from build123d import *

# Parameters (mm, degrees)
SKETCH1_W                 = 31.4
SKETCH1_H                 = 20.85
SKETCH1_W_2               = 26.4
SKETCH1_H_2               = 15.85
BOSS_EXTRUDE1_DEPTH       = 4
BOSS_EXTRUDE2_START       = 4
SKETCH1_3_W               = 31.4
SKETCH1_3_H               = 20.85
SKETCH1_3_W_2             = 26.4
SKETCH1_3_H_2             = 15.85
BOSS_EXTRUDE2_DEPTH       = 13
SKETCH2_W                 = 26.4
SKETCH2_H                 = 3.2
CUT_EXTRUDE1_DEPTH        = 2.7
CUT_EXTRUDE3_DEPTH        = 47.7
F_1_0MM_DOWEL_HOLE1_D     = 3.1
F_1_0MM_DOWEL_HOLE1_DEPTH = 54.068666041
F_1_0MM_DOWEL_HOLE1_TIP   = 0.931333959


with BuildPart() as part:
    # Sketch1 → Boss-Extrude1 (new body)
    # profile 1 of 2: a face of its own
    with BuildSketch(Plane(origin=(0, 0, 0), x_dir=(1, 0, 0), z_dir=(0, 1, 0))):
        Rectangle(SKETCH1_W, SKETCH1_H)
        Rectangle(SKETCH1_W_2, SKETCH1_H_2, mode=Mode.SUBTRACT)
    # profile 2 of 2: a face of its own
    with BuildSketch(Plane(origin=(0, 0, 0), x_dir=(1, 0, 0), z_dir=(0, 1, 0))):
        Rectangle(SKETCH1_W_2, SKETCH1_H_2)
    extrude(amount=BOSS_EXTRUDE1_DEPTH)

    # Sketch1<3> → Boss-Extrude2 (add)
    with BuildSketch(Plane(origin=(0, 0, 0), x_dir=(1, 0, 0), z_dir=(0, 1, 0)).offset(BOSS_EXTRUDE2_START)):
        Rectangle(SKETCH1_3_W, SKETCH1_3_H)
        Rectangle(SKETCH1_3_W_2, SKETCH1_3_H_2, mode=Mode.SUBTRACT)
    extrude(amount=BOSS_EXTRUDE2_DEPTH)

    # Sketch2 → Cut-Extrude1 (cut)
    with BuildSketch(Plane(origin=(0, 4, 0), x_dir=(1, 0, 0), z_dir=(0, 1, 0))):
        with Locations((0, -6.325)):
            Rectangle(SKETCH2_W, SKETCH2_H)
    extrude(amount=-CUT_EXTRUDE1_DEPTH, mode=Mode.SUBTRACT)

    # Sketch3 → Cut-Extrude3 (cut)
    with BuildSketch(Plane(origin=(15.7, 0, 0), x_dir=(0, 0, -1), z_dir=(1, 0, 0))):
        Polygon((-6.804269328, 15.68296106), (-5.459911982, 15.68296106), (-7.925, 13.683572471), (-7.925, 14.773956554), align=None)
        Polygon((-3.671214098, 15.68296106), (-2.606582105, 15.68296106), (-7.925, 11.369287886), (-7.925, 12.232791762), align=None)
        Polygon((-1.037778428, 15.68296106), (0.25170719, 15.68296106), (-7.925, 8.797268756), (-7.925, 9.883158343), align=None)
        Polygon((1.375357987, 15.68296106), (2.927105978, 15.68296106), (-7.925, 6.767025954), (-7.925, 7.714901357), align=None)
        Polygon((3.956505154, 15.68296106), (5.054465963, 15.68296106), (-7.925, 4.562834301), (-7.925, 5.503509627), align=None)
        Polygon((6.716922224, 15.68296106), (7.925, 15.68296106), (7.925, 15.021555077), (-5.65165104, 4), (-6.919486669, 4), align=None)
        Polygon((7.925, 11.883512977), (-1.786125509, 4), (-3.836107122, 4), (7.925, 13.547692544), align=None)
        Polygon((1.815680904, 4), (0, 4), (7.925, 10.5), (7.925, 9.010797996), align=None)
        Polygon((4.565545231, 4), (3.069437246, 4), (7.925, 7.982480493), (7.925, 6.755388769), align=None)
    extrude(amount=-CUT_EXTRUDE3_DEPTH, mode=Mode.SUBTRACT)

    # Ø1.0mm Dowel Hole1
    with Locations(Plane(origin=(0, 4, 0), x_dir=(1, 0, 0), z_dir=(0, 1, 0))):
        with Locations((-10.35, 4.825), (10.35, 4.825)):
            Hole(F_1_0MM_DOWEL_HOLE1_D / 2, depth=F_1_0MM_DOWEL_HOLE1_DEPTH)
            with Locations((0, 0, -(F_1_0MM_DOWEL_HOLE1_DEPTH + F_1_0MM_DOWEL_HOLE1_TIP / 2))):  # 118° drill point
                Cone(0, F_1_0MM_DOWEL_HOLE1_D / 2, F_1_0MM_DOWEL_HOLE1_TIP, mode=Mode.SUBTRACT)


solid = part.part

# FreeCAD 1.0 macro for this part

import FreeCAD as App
import Part
import Sketcher

doc = App.newDocument("Part")
body = doc.addObject("PartDesign::Body", "Body")

# Sketch on XZ plane
sketch1 = body.newObject("Sketcher::SketchObject", "Sketch")
sketch1.AttachmentSupport = (doc.getObject("XZ_Plane"), [""])
sketch1.MapMode = "FlatFace"
sketch1.addGeometry(Part.LineSegment(App.Vector(-16, -10, 0), App.Vector(-16, 10, 0)), False)
sketch1.addGeometry(Part.LineSegment(App.Vector(-16, 10, 0), App.Vector(16, 10, 0)), False)
sketch1.addGeometry(Part.LineSegment(App.Vector(16, 10, 0), App.Vector(16, -10, 0)), False)
sketch1.addGeometry(Part.LineSegment(App.Vector(16, -10, 0), App.Vector(-16, -10, 0)), False)
sketch1.addConstraint(Sketcher.Constraint("Coincident", 0, 2, 1, 1))
sketch1.addConstraint(Sketcher.Constraint("Coincident", 1, 2, 2, 1))
sketch1.addConstraint(Sketcher.Constraint("Coincident", 2, 2, 3, 1))
sketch1.addConstraint(Sketcher.Constraint("Coincident", 3, 2, 0, 1))
sketch1.addConstraint(Sketcher.Constraint("Vertical", 0))
sketch1.addConstraint(Sketcher.Constraint("Horizontal", 1))
sketch1.addConstraint(Sketcher.Constraint("Vertical", 2))
sketch1.addConstraint(Sketcher.Constraint("Horizontal", 3))
sketch1.addConstraint(Sketcher.Constraint("Symmetric", 0, 2, 2, 2, -1, 1))
sketch1.addConstraint(Sketcher.Constraint("DistanceX", 1, 1, 1, 2, 31.4))
sketch1.addConstraint(Sketcher.Constraint("DistanceY", 0, 1, 0, 2, 20.85))
pad1 = body.newObject("PartDesign::Pad", "Pad")
pad1.Profile = sketch1
pad1.Length = 4
pad1.Reversed = True

# Sketch on XZ plane
sketch2 = body.newObject("Sketcher::SketchObject", "Sketch001")
sketch2.AttachmentSupport = (doc.getObject("XZ_Plane"), [""])
sketch2.MapMode = "FlatFace"
sketch2.AttachmentOffset = App.Placement(App.Vector(0, 0, -4), App.Rotation())
sketch2.addGeometry(Part.LineSegment(App.Vector(-16, -10, 0), App.Vector(-16, 10, 0)), False)
sketch2.addGeometry(Part.LineSegment(App.Vector(-16, 10, 0), App.Vector(16, 10, 0)), False)
sketch2.addGeometry(Part.LineSegment(App.Vector(16, 10, 0), App.Vector(16, -10, 0)), False)
sketch2.addGeometry(Part.LineSegment(App.Vector(16, -10, 0), App.Vector(-16, -10, 0)), False)
sketch2.addGeometry(Part.LineSegment(App.Vector(13, 8, 0), App.Vector(-13, 8, 0)), False)
sketch2.addGeometry(Part.LineSegment(App.Vector(-13, 8, 0), App.Vector(-13, -8, 0)), False)
sketch2.addGeometry(Part.LineSegment(App.Vector(-13, -8, 0), App.Vector(13, -8, 0)), False)
sketch2.addGeometry(Part.LineSegment(App.Vector(13, -8, 0), App.Vector(13, 8, 0)), False)
sketch2.addConstraint(Sketcher.Constraint("Coincident", 0, 2, 1, 1))
sketch2.addConstraint(Sketcher.Constraint("Coincident", 1, 2, 2, 1))
sketch2.addConstraint(Sketcher.Constraint("Coincident", 2, 2, 3, 1))
sketch2.addConstraint(Sketcher.Constraint("Coincident", 3, 2, 0, 1))
sketch2.addConstraint(Sketcher.Constraint("Coincident", 4, 2, 5, 1))
sketch2.addConstraint(Sketcher.Constraint("Coincident", 5, 2, 6, 1))
sketch2.addConstraint(Sketcher.Constraint("Coincident", 6, 2, 7, 1))
sketch2.addConstraint(Sketcher.Constraint("Coincident", 7, 2, 4, 1))
sketch2.addConstraint(Sketcher.Constraint("Vertical", 0))
sketch2.addConstraint(Sketcher.Constraint("Horizontal", 1))
sketch2.addConstraint(Sketcher.Constraint("Vertical", 2))
sketch2.addConstraint(Sketcher.Constraint("Horizontal", 3))
sketch2.addConstraint(Sketcher.Constraint("Horizontal", 4))
sketch2.addConstraint(Sketcher.Constraint("Vertical", 5))
sketch2.addConstraint(Sketcher.Constraint("Horizontal", 6))
sketch2.addConstraint(Sketcher.Constraint("Vertical", 7))
sketch2.addConstraint(Sketcher.Constraint("Symmetric", 0, 2, 2, 2, -1, 1))
sketch2.addConstraint(Sketcher.Constraint("Symmetric", 4, 2, 6, 2, -1, 1))
sketch2.addConstraint(Sketcher.Constraint("DistanceX", 1, 1, 1, 2, 31.4))
sketch2.addConstraint(Sketcher.Constraint("DistanceX", 4, 2, 4, 1, 26.4))
sketch2.addConstraint(Sketcher.Constraint("DistanceY", 0, 1, 0, 2, 20.85))
sketch2.addConstraint(Sketcher.Constraint("DistanceY", 5, 2, 5, 1, 15.85))
pad2 = body.newObject("PartDesign::Pad", "Pad001")
pad2.Profile = sketch2
pad2.Length = 13
pad2.Reversed = True

# Sketch on XZ plane
sketch3 = body.newObject("Sketcher::SketchObject", "Sketch002")
sketch3.AttachmentSupport = (doc.getObject("XZ_Plane"), [""])
sketch3.MapMode = "FlatFace"
sketch3.AttachmentOffset = App.Placement(App.Vector(0, 0, -4), App.Rotation())
sketch3.addGeometry(Part.LineSegment(App.Vector(-13.2, 4.7, 0), App.Vector(-13.2, 7.9, 0)), False)
sketch3.addGeometry(Part.LineSegment(App.Vector(-13.2, 7.9, 0), App.Vector(13.2, 7.9, 0)), False)
sketch3.addGeometry(Part.LineSegment(App.Vector(13.2, 7.9, 0), App.Vector(13.2, 4.7, 0)), False)
sketch3.addGeometry(Part.LineSegment(App.Vector(13.2, 4.7, 0), App.Vector(-13.2, 4.7, 0)), False)
sketch3.addConstraint(Sketcher.Constraint("Coincident", 0, 2, 1, 1))
sketch3.addConstraint(Sketcher.Constraint("Coincident", 1, 2, 2, 1))
sketch3.addConstraint(Sketcher.Constraint("Coincident", 2, 2, 3, 1))
sketch3.addConstraint(Sketcher.Constraint("Coincident", 3, 2, 0, 1))
sketch3.addConstraint(Sketcher.Constraint("Vertical", 0))
sketch3.addConstraint(Sketcher.Constraint("Horizontal", 1))
sketch3.addConstraint(Sketcher.Constraint("Vertical", 2))
sketch3.addConstraint(Sketcher.Constraint("Horizontal", 3))
sketch3.addConstraint(Sketcher.Constraint("DistanceX", 1, 1, 1, 2, 26.4))
sketch3.addConstraint(Sketcher.Constraint("DistanceY", 0, 1, 0, 2, 3.2))
sketch3.addConstraint(Sketcher.Constraint("DistanceX", 0, 2, -1, 1, 13.2))
sketch3.addConstraint(Sketcher.Constraint("DistanceY", -1, 1, 0, 2, 7.925))
pocket1 = body.newObject("PartDesign::Pocket", "Pocket")
pocket1.Profile = sketch3
pocket1.Length = 2.7
pocket1.Reversed = True

# Sketch on YZ plane
sketch4 = body.newObject("Sketcher::SketchObject", "Sketch003")
sketch4.AttachmentSupport = (doc.getObject("YZ_Plane"), [""])
sketch4.MapMode = "FlatFace"
sketch4.AttachmentOffset = App.Placement(App.Vector(0, 0, 15.7), App.Rotation())
sketch4.addGeometry(Part.LineSegment(App.Vector(15.7, 5.5, 0), App.Vector(15.7, 6.8, 0)), False)
sketch4.addGeometry(Part.LineSegment(App.Vector(15.7, 6.8, 0), App.Vector(14.8, 7.9, 0)), False)
sketch4.addGeometry(Part.LineSegment(App.Vector(14.8, 7.9, 0), App.Vector(13.7, 7.9, 0)), False)
sketch4.addGeometry(Part.LineSegment(App.Vector(13.7, 7.9, 0), App.Vector(15.7, 5.5, 0)), False)
sketch4.addGeometry(Part.LineSegment(App.Vector(15.7, 2.6, 0), App.Vector(15.7, 3.7, 0)), False)
sketch4.addGeometry(Part.LineSegment(App.Vector(15.7, 3.7, 0), App.Vector(12.2, 7.9, 0)), False)
sketch4.addGeometry(Part.LineSegment(App.Vector(12.2, 7.9, 0), App.Vector(11.4, 7.9, 0)), False)
sketch4.addGeometry(Part.LineSegment(App.Vector(11.4, 7.9, 0), App.Vector(15.7, 2.6, 0)), False)
sketch4.addGeometry(Part.LineSegment(App.Vector(15.7, -0.3, 0), App.Vector(15.7, 1, 0)), False)
sketch4.addGeometry(Part.LineSegment(App.Vector(15.7, 1, 0), App.Vector(9.9, 7.9, 0)), False)
sketch4.addGeometry(Part.LineSegment(App.Vector(9.9, 7.9, 0), App.Vector(8.8, 7.9, 0)), False)
sketch4.addGeometry(Part.LineSegment(App.Vector(8.8, 7.9, 0), App.Vector(15.7, -0.3, 0)), False)
sketch4.addGeometry(Part.LineSegment(App.Vector(15.7, -2.9, 0), App.Vector(15.7, -1.4, 0)), False)
sketch4.addGeometry(Part.LineSegment(App.Vector(15.7, -1.4, 0), App.Vector(7.7, 7.9, 0)), False)
sketch4.addGeometry(Part.LineSegment(App.Vector(7.7, 7.9, 0), App.Vector(6.8, 7.9, 0)), False)
sketch4.addGeometry(Part.LineSegment(App.Vector(6.8, 7.9, 0), App.Vector(15.7, -2.9, 0)), False)
sketch4.addGeometry(Part.LineSegment(App.Vector(15.7, -5.1, 0), App.Vector(15.7, -4, 0)), False)
sketch4.addGeometry(Part.LineSegment(App.Vector(15.7, -4, 0), App.Vector(5.5, 7.9, 0)), False)
sketch4.addGeometry(Part.LineSegment(App.Vector(5.5, 7.9, 0), App.Vector(4.6, 7.9, 0)), False)
sketch4.addGeometry(Part.LineSegment(App.Vector(4.6, 7.9, 0), App.Vector(15.7, -5.1, 0)), False)
sketch4.addGeometry(Part.LineSegment(App.Vector(15.7, -7.9, 0), App.Vector(15.7, -6.7, 0)), False)
sketch4.addGeometry(Part.LineSegment(App.Vector(15.7, -6.7, 0), App.Vector(4, 6.9, 0)), False)
sketch4.addGeometry(Part.LineSegment(App.Vector(4, 6.9, 0), App.Vector(4, 5.7, 0)), False)
sketch4.addGeometry(Part.LineSegment(App.Vector(4, 5.7, 0), App.Vector(15, -7.9, 0)), False)
sketch4.addGeometry(Part.LineSegment(App.Vector(15, -7.9, 0), App.Vector(15.7, -7.9, 0)), False)
sketch4.addGeometry(Part.LineSegment(App.Vector(4, 1.8, 0), App.Vector(11.9, -7.9, 0)), False)
sketch4.addGeometry(Part.LineSegment(App.Vector(11.9, -7.9, 0), App.Vector(13.5, -7.9, 0)), False)
sketch4.addGeometry(Part.LineSegment(App.Vector(13.5, -7.9, 0), App.Vector(4, 3.8, 0)), False)
sketch4.addGeometry(Part.LineSegment(App.Vector(4, 3.8, 0), App.Vector(4, 1.8, 0)), False)
sketch4.addGeometry(Part.LineSegment(App.Vector(4, 0, 0), App.Vector(4, -1.8, 0)), False)
sketch4.addGeometry(Part.LineSegment(App.Vector(4, -1.8, 0), App.Vector(9, -7.9, 0)), False)
sketch4.addGeometry(Part.LineSegment(App.Vector(9, -7.9, 0), App.Vector(10.5, -7.9, 0)), False)
sketch4.addGeometry(Part.LineSegment(App.Vector(10.5, -7.9, 0), App.Vector(4, 0, 0)), False)
sketch4.addGeometry(Part.LineSegment(App.Vector(4, -3.1, 0), App.Vector(4, -4.6, 0)), False)
sketch4.addGeometry(Part.LineSegment(App.Vector(4, -4.6, 0), App.Vector(6.8, -7.9, 0)), False)
sketch4.addGeometry(Part.LineSegment(App.Vector(6.8, -7.9, 0), App.Vector(8, -7.9, 0)), False)
sketch4.addGeometry(Part.LineSegment(App.Vector(8, -7.9, 0), App.Vector(4, -3.1, 0)), False)
sketch4.addConstraint(Sketcher.Constraint("Coincident", 0, 2, 1, 1))
sketch4.addConstraint(Sketcher.Constraint("Coincident", 1, 2, 2, 1))
sketch4.addConstraint(Sketcher.Constraint("Coincident", 2, 2, 3, 1))
sketch4.addConstraint(Sketcher.Constraint("Coincident", 3, 2, 0, 1))
sketch4.addConstraint(Sketcher.Constraint("Coincident", 4, 2, 5, 1))
sketch4.addConstraint(Sketcher.Constraint("Coincident", 5, 2, 6, 1))
sketch4.addConstraint(Sketcher.Constraint("Coincident", 6, 2, 7, 1))
sketch4.addConstraint(Sketcher.Constraint("Coincident", 7, 2, 4, 1))
sketch4.addConstraint(Sketcher.Constraint("Coincident", 8, 2, 9, 1))
sketch4.addConstraint(Sketcher.Constraint("Coincident", 9, 2, 10, 1))
sketch4.addConstraint(Sketcher.Constraint("Coincident", 10, 2, 11, 1))
sketch4.addConstraint(Sketcher.Constraint("Coincident", 11, 2, 8, 1))
sketch4.addConstraint(Sketcher.Constraint("Coincident", 12, 2, 13, 1))
sketch4.addConstraint(Sketcher.Constraint("Coincident", 13, 2, 14, 1))
sketch4.addConstraint(Sketcher.Constraint("Coincident", 14, 2, 15, 1))
sketch4.addConstraint(Sketcher.Constraint("Coincident", 15, 2, 12, 1))
sketch4.addConstraint(Sketcher.Constraint("Coincident", 16, 2, 17, 1))
sketch4.addConstraint(Sketcher.Constraint("Coincident", 17, 2, 18, 1))
sketch4.addConstraint(Sketcher.Constraint("Coincident", 18, 2, 19, 1))
sketch4.addConstraint(Sketcher.Constraint("Coincident", 19, 2, 16, 1))
sketch4.addConstraint(Sketcher.Constraint("Coincident", 20, 2, 21, 1))
sketch4.addConstraint(Sketcher.Constraint("Coincident", 21, 2, 22, 1))
sketch4.addConstraint(Sketcher.Constraint("Coincident", 22, 2, 23, 1))
sketch4.addConstraint(Sketcher.Constraint("Coincident", 23, 2, 24, 1))
sketch4.addConstraint(Sketcher.Constraint("Coincident", 24, 2, 20, 1))
sketch4.addConstraint(Sketcher.Constraint("Coincident", 25, 2, 26, 1))
sketch4.addConstraint(Sketcher.Constraint("Coincident", 26, 2, 27, 1))
sketch4.addConstraint(Sketcher.Constraint("Coincident", 27, 2, 28, 1))
sketch4.addConstraint(Sketcher.Constraint("Coincident", 28, 2, 25, 1))
sketch4.addConstraint(Sketcher.Constraint("Coincident", 29, 2, 30, 1))
sketch4.addConstraint(Sketcher.Constraint("Coincident", 30, 2, 31, 1))
sketch4.addConstraint(Sketcher.Constraint("Coincident", 31, 2, 32, 1))
sketch4.addConstraint(Sketcher.Constraint("Coincident", 32, 2, 29, 1))
sketch4.addConstraint(Sketcher.Constraint("Coincident", 33, 2, 34, 1))
sketch4.addConstraint(Sketcher.Constraint("Coincident", 34, 2, 35, 1))
sketch4.addConstraint(Sketcher.Constraint("Coincident", 35, 2, 36, 1))
sketch4.addConstraint(Sketcher.Constraint("Coincident", 36, 2, 33, 1))
sketch4.addConstraint(Sketcher.Constraint("Vertical", 0))
sketch4.addConstraint(Sketcher.Constraint("Horizontal", 2))
sketch4.addConstraint(Sketcher.Constraint("Vertical", 4))
sketch4.addConstraint(Sketcher.Constraint("Horizontal", 6))
sketch4.addConstraint(Sketcher.Constraint("Vertical", 8))
sketch4.addConstraint(Sketcher.Constraint("Horizontal", 10))
sketch4.addConstraint(Sketcher.Constraint("Vertical", 12))
sketch4.addConstraint(Sketcher.Constraint("Horizontal", 14))
sketch4.addConstraint(Sketcher.Constraint("Vertical", 16))
sketch4.addConstraint(Sketcher.Constraint("Horizontal", 18))
sketch4.addConstraint(Sketcher.Constraint("Vertical", 20))
sketch4.addConstraint(Sketcher.Constraint("Vertical", 22))
sketch4.addConstraint(Sketcher.Constraint("Horizontal", 24))
sketch4.addConstraint(Sketcher.Constraint("Horizontal", 26))
sketch4.addConstraint(Sketcher.Constraint("Vertical", 28))
sketch4.addConstraint(Sketcher.Constraint("Vertical", 29))
sketch4.addConstraint(Sketcher.Constraint("Horizontal", 31))
sketch4.addConstraint(Sketcher.Constraint("Vertical", 33))
sketch4.addConstraint(Sketcher.Constraint("Horizontal", 35))
sketch4.addConstraint(Sketcher.Constraint("PointOnObject", 32, 2, -1))
sketch4.addConstraint(Sketcher.Constraint("Parallel", 1, 3))
sketch4.addConstraint(Sketcher.Constraint("Parallel", 3, 5))
sketch4.addConstraint(Sketcher.Constraint("Parallel", 5, 7))
sketch4.addConstraint(Sketcher.Constraint("Parallel", 9, 11))
sketch4.addConstraint(Sketcher.Constraint("Parallel", 13, 17))
sketch4.addConstraint(Sketcher.Constraint("Parallel", 17, 19))
sketch4.addConstraint(Sketcher.Constraint("Parallel", 19, 21))
sketch4.addConstraint(Sketcher.Constraint("Parallel", 23, 25))
sketch4.addConstraint(Sketcher.Constraint("Parallel", 25, 27))
sketch4.addConstraint(Sketcher.Constraint("Parallel", 30, 32))
sketch4.addConstraint(Sketcher.Constraint("Parallel", 32, 34))
sketch4.addConstraint(Sketcher.Constraint("Parallel", 34, 36))
sketch4.addConstraint(Sketcher.Constraint("Horizontal", 2, 2, 5, 2))
sketch4.addConstraint(Sketcher.Constraint("Horizontal", 6, 2, 9, 2))
sketch4.addConstraint(Sketcher.Constraint("Horizontal", 10, 2, 13, 2))
sketch4.addConstraint(Sketcher.Constraint("Horizontal", 14, 2, 17, 2))
sketch4.addConstraint(Sketcher.Constraint("Horizontal", 24, 2, 25, 2))
sketch4.addConstraint(Sketcher.Constraint("Horizontal", 26, 2, 30, 2))
sketch4.addConstraint(Sketcher.Constraint("Horizontal", 31, 2, 34, 2))
sketch4.addConstraint(Sketcher.Constraint("Vertical", 3, 2, 4, 2))
sketch4.addConstraint(Sketcher.Constraint("Vertical", 7, 2, 8, 2))
sketch4.addConstraint(Sketcher.Constraint("Vertical", 11, 2, 12, 2))
sketch4.addConstraint(Sketcher.Constraint("Vertical", 15, 2, 16, 2))
sketch4.addConstraint(Sketcher.Constraint("Vertical", 19, 2, 20, 2))
sketch4.addConstraint(Sketcher.Constraint("Vertical", 22, 2, 27, 2))
sketch4.addConstraint(Sketcher.Constraint("Vertical", 28, 2, 29, 2))
sketch4.addConstraint(Sketcher.Constraint("Vertical", 32, 2, 33, 2))
sketch4.addConstraint(Sketcher.Constraint("DistanceX", -1, 1, 21, 2, 4.0))
sketch4.addConstraint(Sketcher.Constraint("DistanceX", -1, 1, 31, 2, 10.5))
sketch4.addConstraint(Sketcher.Constraint("DistanceY", -1, 1, 1, 2, 7.925))
sketch4.addConstraint(Sketcher.Constraint("DistanceY", 23, 2, -1, 1, 7.925))
sketch4.addConstraint(Sketcher.Constraint("DistanceX", 10, 2, 10, 1, 1.08589))
sketch4.addConstraint(Sketcher.Constraint("DistanceX", 26, 1, 26, 2, 1.66418))
sketch4.addConstraint(Sketcher.Constraint("DistanceX", 35, 1, 35, 2, 1.227092))
sketch4.addConstraint(Sketcher.Constraint("DistanceY", 4, 1, 4, 2, 1.064632))
sketch4.addConstraint(Sketcher.Constraint("DistanceY", 16, 1, 16, 2, 1.097961))
sketch4.addConstraint(Sketcher.Constraint("DistanceY", 28, 2, 28, 1, 2.049982))
sketch4.addConstraint(Sketcher.Constraint("DistanceY", 29, 2, 29, 1, 1.815681))
sketch4.addConstraint(Sketcher.Constraint("DistanceX", -1, 1, 13, 2, 7.714901))
sketch4.addConstraint(Sketcher.Constraint("DistanceX", 9, 2, 1, 2, 4.890798))
sketch4.addConstraint(Sketcher.Constraint("DistanceY", 15, 2, 11, 2, 2.675399))
sketch4.addConstraint(Sketcher.Constraint("DistanceY", 16, 2, 15, 2, 1.029399))
sketch4.addConstraint(Sketcher.Constraint("Distance", 3, 3.17399))
sketch4.addConstraint(Sketcher.Constraint("Distance", 7, 6.847872))
sketch4.addConstraint(Sketcher.Constraint("Distance", 17, 15.645811))
sketch4.addConstraint(Sketcher.Constraint("Distance", 19, 17.091628))
sketch4.addConstraint(Sketcher.Constraint("Distance", 23, 17.487142))
sketch4.addConstraint(Sketcher.Constraint("Distance", 36, 6.27986))
sketch4.addConstraint(Sketcher.Constraint("DistanceX", 2, 2, 2, 1, 1.090384))
sketch4.addConstraint(Sketcher.Constraint("DistanceX", 6, 2, 6, 1, 0.863504))
sketch4.addConstraint(Sketcher.Constraint("DistanceX", 14, 2, 14, 1, 0.947875))
sketch4.addConstraint(Sketcher.Constraint("DistanceX", 24, 1, 24, 2, 0.661406))
sketch4.addConstraint(Sketcher.Constraint("DistanceY", 20, 1, 20, 2, 1.208078))
sketch4.addConstraint(Sketcher.Constraint("DistanceX", 25, 2, 24, 2, 3.799448))
pocket2 = body.newObject("PartDesign::Pocket", "Pocket001")
pocket2.Profile = sketch4
pocket2.Length = 47.7

# Sketch on XZ plane
sketch5 = body.newObject("Sketcher::SketchObject", "Sketch004")
sketch5.AttachmentSupport = (doc.getObject("XZ_Plane"), [""])
sketch5.MapMode = "FlatFace"
sketch5.AttachmentOffset = App.Placement(App.Vector(0, 0, -4), App.Rotation())
sketch5.addGeometry(Part.Circle(App.Vector(-10.3, -4.8, 0), App.Vector(0, 0, 1), 1.6), False)
sketch5.addGeometry(Part.Circle(App.Vector(10.3, -4.8, 0), App.Vector(0, 0, 1), 1.6), False)
sketch5.addConstraint(Sketcher.Constraint("Equal", 0, 1))
sketch5.addConstraint(Sketcher.Constraint("Symmetric", 0, 3, 1, 3, -2))
sketch5.addConstraint(Sketcher.Constraint("Diameter", 0, 3.1))
sketch5.addConstraint(Sketcher.Constraint("DistanceX", 0, 3, 1, 3, 20.7))
sketch5.addConstraint(Sketcher.Constraint("DistanceY", 0, 3, -1, 1, 4.825))
doc.recompute()
hole = body.newObject("PartDesign::Hole", "Hole")
hole.Profile = sketch5
hole.ThreadType = "None"
hole.Diameter = 3.1
hole.DepthType = "Dimension"
hole.Depth = 54.068666
hole.DrillPoint = "Angled"
hole.DrillPointAngle = 118
hole.Reversed = True

doc.recompute()
